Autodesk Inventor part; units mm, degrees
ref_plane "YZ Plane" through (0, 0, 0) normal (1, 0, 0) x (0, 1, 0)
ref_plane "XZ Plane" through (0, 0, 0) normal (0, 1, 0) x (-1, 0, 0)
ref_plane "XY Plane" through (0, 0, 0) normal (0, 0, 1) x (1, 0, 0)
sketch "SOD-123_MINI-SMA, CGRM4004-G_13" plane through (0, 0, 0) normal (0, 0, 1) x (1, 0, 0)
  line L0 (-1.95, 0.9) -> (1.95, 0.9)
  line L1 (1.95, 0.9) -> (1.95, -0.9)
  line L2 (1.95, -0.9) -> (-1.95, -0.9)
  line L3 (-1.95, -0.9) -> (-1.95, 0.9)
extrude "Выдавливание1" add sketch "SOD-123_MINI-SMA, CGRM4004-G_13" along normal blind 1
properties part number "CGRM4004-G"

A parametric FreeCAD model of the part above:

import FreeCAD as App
import Part
import Sketcher

V = App.Vector
Q = App.Units.Quantity

doc = App.newDocument("Part")
body = doc.addObject("PartDesign::Body", "Body")

sketch1 = body.newObject("Sketcher::SketchObject", "Sketch")
sketch1.AttachmentSupport = (doc.getObject("XY_Plane"), [""])
sketch1.MapMode = "FlatFace"
sketch1.addGeometry([
    Part.LineSegment(V(1.9, 0.9, 0), V(-1.9, 0.9, 0)),
    Part.LineSegment(V(-1.9, 0.9, 0), V(-1.9, -0.9, 0)),
    Part.LineSegment(V(-1.9, -0.9, 0), V(1.9, -0.9, 0)),
    Part.LineSegment(V(1.9, -0.9, 0), V(1.9, 0.9, 0)),
], False)
sketch1.addConstraint([
    Sketcher.Constraint("Coincident", 0, 2, 1, 1),
    Sketcher.Constraint("Coincident", 1, 2, 2, 1),
    Sketcher.Constraint("Coincident", 2, 2, 3, 1),
    Sketcher.Constraint("Coincident", 3, 2, 0, 1),
    Sketcher.Constraint("Horizontal", 0),
    Sketcher.Constraint("Vertical", 1),
    Sketcher.Constraint("Horizontal", 2),
    Sketcher.Constraint("Vertical", 3),
    Sketcher.Constraint("Symmetric", 0, 2, 2, 2, -1, 1),
    Sketcher.Constraint("DistanceX", 0, 2, 0, 1, Q("3.9 mm")),
    Sketcher.Constraint("DistanceY", 1, 2, 1, 1, Q("1.8 mm")),
])
pad1 = body.newObject("PartDesign::Pad", "Pad")
pad1.Profile = sketch1
pad1.Length = 1

doc.recompute()
